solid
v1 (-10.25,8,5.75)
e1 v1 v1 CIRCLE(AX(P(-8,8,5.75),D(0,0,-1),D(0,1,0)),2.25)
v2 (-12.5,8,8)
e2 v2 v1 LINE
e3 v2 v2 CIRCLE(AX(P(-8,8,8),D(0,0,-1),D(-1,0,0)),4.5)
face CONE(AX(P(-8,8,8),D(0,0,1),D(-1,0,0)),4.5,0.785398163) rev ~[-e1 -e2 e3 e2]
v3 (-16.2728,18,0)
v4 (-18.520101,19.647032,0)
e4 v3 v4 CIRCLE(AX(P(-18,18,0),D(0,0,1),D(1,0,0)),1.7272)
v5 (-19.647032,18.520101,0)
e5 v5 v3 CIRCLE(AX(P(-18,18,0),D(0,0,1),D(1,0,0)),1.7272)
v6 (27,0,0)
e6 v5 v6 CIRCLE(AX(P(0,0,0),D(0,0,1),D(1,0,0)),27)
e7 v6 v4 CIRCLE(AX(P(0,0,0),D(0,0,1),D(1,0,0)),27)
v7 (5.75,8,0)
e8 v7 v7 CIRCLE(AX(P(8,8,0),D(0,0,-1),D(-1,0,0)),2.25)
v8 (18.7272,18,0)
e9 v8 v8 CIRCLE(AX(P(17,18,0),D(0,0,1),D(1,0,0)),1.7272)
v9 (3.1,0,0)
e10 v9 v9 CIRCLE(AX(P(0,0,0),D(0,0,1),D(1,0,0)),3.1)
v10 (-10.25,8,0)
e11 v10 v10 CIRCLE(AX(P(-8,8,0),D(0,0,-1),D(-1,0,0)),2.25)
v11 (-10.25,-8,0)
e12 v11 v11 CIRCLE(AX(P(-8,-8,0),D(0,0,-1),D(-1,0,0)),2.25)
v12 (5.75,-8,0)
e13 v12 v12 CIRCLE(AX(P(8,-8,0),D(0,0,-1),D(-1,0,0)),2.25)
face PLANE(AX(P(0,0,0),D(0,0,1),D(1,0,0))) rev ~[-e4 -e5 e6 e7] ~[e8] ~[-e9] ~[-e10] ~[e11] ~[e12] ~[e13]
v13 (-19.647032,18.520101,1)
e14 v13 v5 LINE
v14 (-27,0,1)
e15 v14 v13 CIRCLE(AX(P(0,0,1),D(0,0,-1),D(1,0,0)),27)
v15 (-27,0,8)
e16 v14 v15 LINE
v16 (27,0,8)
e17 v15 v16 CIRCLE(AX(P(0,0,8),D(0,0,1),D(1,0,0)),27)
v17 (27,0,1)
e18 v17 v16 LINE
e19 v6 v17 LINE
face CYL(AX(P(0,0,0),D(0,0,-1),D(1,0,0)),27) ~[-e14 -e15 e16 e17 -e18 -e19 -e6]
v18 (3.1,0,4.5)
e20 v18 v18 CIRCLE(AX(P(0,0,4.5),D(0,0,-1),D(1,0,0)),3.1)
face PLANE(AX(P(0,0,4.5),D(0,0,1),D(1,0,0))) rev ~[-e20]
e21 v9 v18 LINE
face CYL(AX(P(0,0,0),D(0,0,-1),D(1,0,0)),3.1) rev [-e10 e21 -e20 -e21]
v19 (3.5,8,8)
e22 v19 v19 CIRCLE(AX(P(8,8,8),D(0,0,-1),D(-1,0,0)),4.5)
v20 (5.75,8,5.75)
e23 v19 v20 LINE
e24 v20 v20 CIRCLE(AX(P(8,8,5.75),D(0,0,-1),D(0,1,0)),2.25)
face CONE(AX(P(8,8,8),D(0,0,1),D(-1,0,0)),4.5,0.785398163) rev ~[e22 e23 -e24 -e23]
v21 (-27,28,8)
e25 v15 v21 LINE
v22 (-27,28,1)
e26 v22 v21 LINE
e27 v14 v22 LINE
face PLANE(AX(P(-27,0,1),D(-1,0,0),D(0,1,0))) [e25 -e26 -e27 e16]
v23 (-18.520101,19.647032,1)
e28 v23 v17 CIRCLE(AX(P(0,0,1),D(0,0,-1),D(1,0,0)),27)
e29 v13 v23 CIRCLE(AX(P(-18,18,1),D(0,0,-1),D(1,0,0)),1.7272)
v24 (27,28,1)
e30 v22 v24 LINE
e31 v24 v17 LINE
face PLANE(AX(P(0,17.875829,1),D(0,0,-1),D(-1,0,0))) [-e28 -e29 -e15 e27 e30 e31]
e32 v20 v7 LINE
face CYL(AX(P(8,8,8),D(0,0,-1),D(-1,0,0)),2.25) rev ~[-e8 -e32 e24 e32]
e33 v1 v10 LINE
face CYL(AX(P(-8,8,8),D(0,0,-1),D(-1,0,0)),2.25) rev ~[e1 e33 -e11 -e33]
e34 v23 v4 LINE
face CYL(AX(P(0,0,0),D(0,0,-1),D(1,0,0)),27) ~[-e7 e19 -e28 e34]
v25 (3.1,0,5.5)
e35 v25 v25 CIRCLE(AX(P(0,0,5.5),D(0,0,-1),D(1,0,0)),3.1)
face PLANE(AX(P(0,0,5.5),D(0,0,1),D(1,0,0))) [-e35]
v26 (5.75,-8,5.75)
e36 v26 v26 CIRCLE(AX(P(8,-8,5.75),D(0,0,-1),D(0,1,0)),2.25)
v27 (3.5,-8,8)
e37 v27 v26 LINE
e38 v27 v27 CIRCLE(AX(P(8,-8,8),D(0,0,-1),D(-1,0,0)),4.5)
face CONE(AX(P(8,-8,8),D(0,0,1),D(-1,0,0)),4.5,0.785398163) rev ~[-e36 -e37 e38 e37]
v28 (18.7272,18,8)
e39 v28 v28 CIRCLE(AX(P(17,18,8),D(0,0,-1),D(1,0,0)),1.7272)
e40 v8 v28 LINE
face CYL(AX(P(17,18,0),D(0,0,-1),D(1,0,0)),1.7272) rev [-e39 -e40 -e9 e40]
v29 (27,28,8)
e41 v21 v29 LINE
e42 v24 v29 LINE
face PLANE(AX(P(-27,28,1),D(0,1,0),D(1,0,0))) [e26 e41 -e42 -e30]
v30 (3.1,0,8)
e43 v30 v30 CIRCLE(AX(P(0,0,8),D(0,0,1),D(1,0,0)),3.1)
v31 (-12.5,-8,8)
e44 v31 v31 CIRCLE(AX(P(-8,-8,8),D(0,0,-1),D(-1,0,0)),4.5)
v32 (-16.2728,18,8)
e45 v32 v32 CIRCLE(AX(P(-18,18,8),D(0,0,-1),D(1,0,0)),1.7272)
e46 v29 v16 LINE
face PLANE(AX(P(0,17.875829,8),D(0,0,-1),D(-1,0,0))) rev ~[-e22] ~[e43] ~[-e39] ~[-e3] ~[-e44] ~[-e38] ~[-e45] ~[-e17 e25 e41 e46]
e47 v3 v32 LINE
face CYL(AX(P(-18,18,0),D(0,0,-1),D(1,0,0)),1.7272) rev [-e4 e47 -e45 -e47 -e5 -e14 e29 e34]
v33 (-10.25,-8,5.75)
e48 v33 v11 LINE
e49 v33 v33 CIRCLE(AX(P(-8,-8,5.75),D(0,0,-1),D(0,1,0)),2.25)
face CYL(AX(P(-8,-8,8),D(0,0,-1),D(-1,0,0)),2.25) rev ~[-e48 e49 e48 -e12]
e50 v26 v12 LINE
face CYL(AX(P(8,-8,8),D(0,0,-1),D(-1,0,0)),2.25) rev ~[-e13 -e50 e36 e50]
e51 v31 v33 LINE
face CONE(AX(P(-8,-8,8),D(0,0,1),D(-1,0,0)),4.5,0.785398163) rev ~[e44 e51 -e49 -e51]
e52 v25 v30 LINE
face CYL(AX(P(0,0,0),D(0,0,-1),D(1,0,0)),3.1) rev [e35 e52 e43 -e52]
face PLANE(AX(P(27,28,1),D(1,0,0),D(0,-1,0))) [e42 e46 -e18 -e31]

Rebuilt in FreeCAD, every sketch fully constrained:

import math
import FreeCAD as App
import Part
import Sketcher

doc = App.newDocument("Part")
body = doc.addObject("PartDesign::Body", "Body")

# Sketch on XY plane
sketch1 = doc.addObject("Sketcher::SketchObject", "Sketch")
body.addObject(sketch1)
sketch1.AttachmentSupport = (doc.XY_Plane, [""])
sketch1.MapMode = "FlatFace"
sketch1.addGeometry([
    Part.Circle(App.Vector(0, 0, 0), App.Vector(0, 0, 1), 27),
    Part.Circle(App.Vector(0, 0, 0), App.Vector(0, 0, 1), 3.1),
], False)
sketch1.addConstraint([
    Sketcher.Constraint("Coincident", 0, 3, -1, 1),
    Sketcher.Constraint("Coincident", 1, 3, -1, 1),
    Sketcher.Constraint("Diameter", 0, 54.0),
    Sketcher.Constraint("Diameter", 1, 6.2),
])
pad1 = doc.addObject("PartDesign::Pad", "Pad")
body.addObject(pad1)
pad1.Profile = sketch1
pad1.Length = 8

# Sketch on XY plane
sketch2 = doc.addObject("Sketcher::SketchObject", "Sketch001")
body.addObject(sketch2)
sketch2.AttachmentSupport = (doc.XY_Plane, [""])
sketch2.MapMode = "FlatFace"
sketch2.AttachmentOffset = App.Placement(App.Vector(0, 0, 8), App.Rotation())
sketch2.addGeometry([
    Part.Circle(App.Vector(-8, 8, 0), App.Vector(0, 0, 1), 2.25),
    Part.Circle(App.Vector(8, 8, 0), App.Vector(0, 0, 1), 2.25),
    Part.Circle(App.Vector(8, -8, 0), App.Vector(0, 0, 1), 2.25),
    Part.Circle(App.Vector(-8, -8, 0), App.Vector(0, 0, 1), 2.25),
], False)
sketch2.addConstraint([
    Sketcher.Constraint("Equal", 0, 1),
    Sketcher.Constraint("Equal", 1, 2),
    Sketcher.Constraint("Equal", 2, 3),
    Sketcher.Constraint("Symmetric", 0, 3, 2, 3, -1, 1),
    Sketcher.Constraint("Symmetric", 1, 3, 3, 3, -1, 1),
    Sketcher.Constraint("Symmetric", 0, 3, 1, 3, -2),
    Sketcher.Constraint("Diameter", 0, 4.5),
    Sketcher.Constraint("DistanceX", 0, 3, -1, 1, 8.0),
    Sketcher.Constraint("DistanceY", -1, 1, 0, 3, 8.0),
])
doc.recompute()
hole = doc.addObject("PartDesign::Hole", "Hole")
body.addObject(hole)
hole.Profile = sketch2
hole.ThreadType = "None"
hole.Diameter = 4.5
hole.DepthType = "ThroughAll"
hole.HoleCutType = "Countersink"
hole.HoleCutDiameter = 9
hole.HoleCutCountersinkAngle = 90

# Sketch on XY plane
sketch3 = doc.addObject("Sketcher::SketchObject", "Sketch002")
body.addObject(sketch3)
sketch3.AttachmentSupport = (doc.XY_Plane, [""])
sketch3.MapMode = "FlatFace"
sketch3.AttachmentOffset = App.Placement(App.Vector(0, 0, 4.5), App.Rotation())
sketch3.addGeometry(Part.Circle(App.Vector(0, 0, 0), App.Vector(0, 0, 1), 4), False)
sketch3.addConstraint([
    Sketcher.Constraint("Coincident", 0, 3, -1, 1),
    Sketcher.Constraint("Diameter", 0, 8.0),
])
pad2 = doc.addObject("PartDesign::Pad", "Pad001")
body.addObject(pad2)
pad2.Profile = sketch3
pad2.Length = 1

# Sketch on XY plane
sketch4 = doc.addObject("Sketcher::SketchObject", "Sketch003")
body.addObject(sketch4)
sketch4.AttachmentSupport = (doc.XY_Plane, [""])
sketch4.MapMode = "FlatFace"
sketch4.AttachmentOffset = App.Placement(App.Vector(0, 0, 1), App.Rotation())
sketch4.addGeometry([
    Part.LineSegment(App.Vector(-27, 28, 0), App.Vector(-27, 0, 0)),  # 0
    Part.LineSegment(App.Vector(-27, 0, 0), App.Vector(-25, 0, 0)),  # 1
    Part.ArcOfCircle(Part.Circle(App.Vector(0, 0, 0), App.Vector(0, 0, 1), 25), math.radians(0), math.radians(180)),  # 2
    Part.LineSegment(App.Vector(25, 0, 0), App.Vector(27, 0, 0)),  # 3
    Part.LineSegment(App.Vector(27, 0, 0), App.Vector(27, 28, 0)),  # 4
    Part.LineSegment(App.Vector(27, 28, 0), App.Vector(-27, 28, 0)),  # 5
], False)
sketch4.addConstraint([
    Sketcher.Constraint("Coincident", 0, 2, 1, 1),
    Sketcher.Constraint("Coincident", 1, 2, 2, 2),
    Sketcher.Constraint("Coincident", 2, 1, 3, 1),
    Sketcher.Constraint("Coincident", 3, 2, 4, 1),
    Sketcher.Constraint("Coincident", 4, 2, 5, 1),
    Sketcher.Constraint("Coincident", 5, 2, 0, 1),
    Sketcher.Constraint("Vertical", 0),
    Sketcher.Constraint("Horizontal", 1),
    Sketcher.Constraint("Horizontal", 3),
    Sketcher.Constraint("Vertical", 4),
    Sketcher.Constraint("Horizontal", 5),
    Sketcher.Constraint("Coincident", 2, 3, -1, 1),
    Sketcher.Constraint("Symmetric", 0, 2, 3, 2, -1, 1),
    Sketcher.Constraint("PointOnObject", 0, 2, -1),
    Sketcher.Constraint("Radius", 2, 25.0),
    Sketcher.Constraint("DistanceX", 1, 1, 1, 2, 2.0),
    Sketcher.Constraint("DistanceY", 0, 2, 0, 1, 28.0),
])
pad3 = doc.addObject("PartDesign::Pad", "Pad002")
body.addObject(pad3)
pad3.Profile = sketch4
pad3.Length = 7

# Sketch on XY plane
sketch5 = doc.addObject("Sketcher::SketchObject", "Sketch004")
body.addObject(sketch5)
sketch5.AttachmentSupport = (doc.XY_Plane, [""])
sketch5.MapMode = "FlatFace"
sketch5.addGeometry([
    Part.Circle(App.Vector(-18, 18, 0), App.Vector(0, 0, 1), 1.7272),
    Part.Circle(App.Vector(17, 18, 0), App.Vector(0, 0, 1), 1.7272),
], False)
sketch5.addConstraint([
    Sketcher.Constraint("Equal", 0, 1),
    Sketcher.Constraint("Horizontal", 0, 3, 1, 3),
    Sketcher.Constraint("DistanceX", 0, 3, -1, 1, 18.0),
    Sketcher.Constraint("DistanceY", -1, 1, 0, 3, 18.0),
    Sketcher.Constraint("DistanceX", -1, 1, 1, 3, 17.0),
    Sketcher.Constraint("Diameter", 0, 3.4544),
])
pocket1 = doc.addObject("PartDesign::Pocket", "Pocket")
body.addObject(pocket1)
pocket1.Profile = sketch5
pocket1.Type = "ThroughAll"
pocket1.Reversed = True

doc.recompute()
